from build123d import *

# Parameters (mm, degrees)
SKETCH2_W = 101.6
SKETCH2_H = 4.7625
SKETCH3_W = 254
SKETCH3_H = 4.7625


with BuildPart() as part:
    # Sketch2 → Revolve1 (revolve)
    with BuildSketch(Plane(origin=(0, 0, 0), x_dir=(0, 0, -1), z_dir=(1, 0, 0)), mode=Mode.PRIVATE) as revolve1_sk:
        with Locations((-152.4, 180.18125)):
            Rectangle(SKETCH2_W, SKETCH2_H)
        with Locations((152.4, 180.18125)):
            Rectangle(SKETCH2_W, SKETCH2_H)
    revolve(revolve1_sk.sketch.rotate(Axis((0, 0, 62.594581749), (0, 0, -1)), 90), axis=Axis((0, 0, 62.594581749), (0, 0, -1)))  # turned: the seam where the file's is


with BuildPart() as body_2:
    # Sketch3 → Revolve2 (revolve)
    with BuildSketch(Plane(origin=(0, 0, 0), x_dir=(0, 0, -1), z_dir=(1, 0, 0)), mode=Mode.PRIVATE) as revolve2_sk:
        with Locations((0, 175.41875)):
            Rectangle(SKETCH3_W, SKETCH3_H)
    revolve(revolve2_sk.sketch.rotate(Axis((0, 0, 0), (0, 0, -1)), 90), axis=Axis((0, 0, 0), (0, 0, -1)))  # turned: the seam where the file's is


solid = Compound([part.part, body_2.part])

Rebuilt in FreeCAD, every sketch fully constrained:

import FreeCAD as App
import Part
import Sketcher
from FreeCAD import Vector
Q = App.Units.Quantity

doc = App.newDocument("Part")
params = doc.addObject("Spreadsheet::Sheet", "Params")
for row, (alias, value) in enumerate([
    ("sketch1_height", "4 in"),
    ("sketch1_width", "0.1875 in"),
    ("revolution_angle", "360 deg"),
    ("sketch2_height", "10 in"),
    ("sketch2_width", "0.1875 in"),
    ("revolution2_angle", "360 deg"),
], start=1):
    params.set(f"A{row}", alias)
    params.set(f"B{row}", "=" + value)
    params.setAlias(f"B{row}", alias)

body = doc.addObject("PartDesign::Body", "Body")
body.AllowCompound = True

# Sketch on YZ plane
sketch1 = body.newObject("Sketcher::SketchObject", "Sketch")
sketch1.AttachmentSupport = (doc.getObject("YZ_Plane"), [""])
sketch1.MapMode = "FlatFace"
sketch1.addGeometry(Part.LineSegment(Vector(182.6, 203.2, 0), Vector(177.8, 203.2, 0)), False)
sketch1.addGeometry(Part.LineSegment(Vector(177.8, 203.2, 0), Vector(177.8, 101.6, 0)), False)
sketch1.addGeometry(Part.LineSegment(Vector(177.8, 101.6, 0), Vector(182.6, 101.6, 0)), False)
sketch1.addGeometry(Part.LineSegment(Vector(182.6, 101.6, 0), Vector(182.6, 203.2, 0)), False)
sketch1.addGeometry(Part.LineSegment(Vector(182.6, -101.6, 0), Vector(177.8, -101.6, 0)), False)
sketch1.addGeometry(Part.LineSegment(Vector(177.8, -101.6, 0), Vector(177.8, -203.2, 0)), False)
sketch1.addGeometry(Part.LineSegment(Vector(177.8, -203.2, 0), Vector(182.6, -203.2, 0)), False)
sketch1.addGeometry(Part.LineSegment(Vector(182.6, -203.2, 0), Vector(182.6, -101.6, 0)), False)
sketch1.addConstraint(Sketcher.Constraint("Coincident", 0, 2, 1, 1))
sketch1.addConstraint(Sketcher.Constraint("Coincident", 1, 2, 2, 1))
sketch1.addConstraint(Sketcher.Constraint("Coincident", 2, 2, 3, 1))
sketch1.addConstraint(Sketcher.Constraint("Coincident", 3, 2, 0, 1))
sketch1.addConstraint(Sketcher.Constraint("Coincident", 4, 2, 5, 1))
sketch1.addConstraint(Sketcher.Constraint("Coincident", 5, 2, 6, 1))
sketch1.addConstraint(Sketcher.Constraint("Coincident", 6, 2, 7, 1))
sketch1.addConstraint(Sketcher.Constraint("Coincident", 7, 2, 4, 1))
sketch1.addConstraint(Sketcher.Constraint("Horizontal", 0))
sketch1.addConstraint(Sketcher.Constraint("Vertical", 1))
sketch1.addConstraint(Sketcher.Constraint("Horizontal", 2))
sketch1.addConstraint(Sketcher.Constraint("Vertical", 3))
sketch1.addConstraint(Sketcher.Constraint("Horizontal", 4))
sketch1.addConstraint(Sketcher.Constraint("Vertical", 5))
sketch1.addConstraint(Sketcher.Constraint("Horizontal", 6))
sketch1.addConstraint(Sketcher.Constraint("Vertical", 7))
sketch1.addConstraint(Sketcher.Constraint("Symmetric", 1, 2, 4, 2, -1))
sketch1.addConstraint(Sketcher.Constraint("Symmetric", 3, 2, 6, 2, -1))
sketch1.addConstraint(Sketcher.Constraint("DistanceY", 1, 2, 1, 1, Q("4 in")))
sketch1.addConstraint(Sketcher.Constraint("DistanceX", -1, 1, 0, 2, Q("7 in")))
sketch1.addConstraint(Sketcher.Constraint("DistanceY", -1, 1, 0, 2, Q("8 in")))
sketch1.addConstraint(Sketcher.Constraint("DistanceX", 0, 2, 0, 1, Q("0.1875 in")))
sketch1.setExpression("Constraints[18]", "Params.sketch1_height")
sketch1.setExpression("Constraints[21]", "Params.sketch1_width")
revolution = body.newObject("PartDesign::Revolution", "Revolution")
revolution.Profile = sketch1
revolution.ReferenceAxis = (sketch1, ["V_Axis"])
revolution.setExpression("Angle", "Params.revolution_angle")
body2 = doc.addObject("PartDesign::Body", "Body001")

# Sketch on YZ plane
sketch2 = body2.newObject("Sketcher::SketchObject", "Sketch001")
sketch2.AttachmentSupport = (doc.getObject("YZ_Plane001"), [""])
sketch2.MapMode = "FlatFace"
sketch2.addGeometry(Part.LineSegment(Vector(177.8, 127, 0), Vector(173, 127, 0)), False)
sketch2.addGeometry(Part.LineSegment(Vector(173, 127, 0), Vector(173, -127, 0)), False)
sketch2.addGeometry(Part.LineSegment(Vector(173, -127, 0), Vector(177.8, -127, 0)), False)
sketch2.addGeometry(Part.LineSegment(Vector(177.8, -127, 0), Vector(177.8, 127, 0)), False)
sketch2.addConstraint(Sketcher.Constraint("Coincident", 0, 2, 1, 1))
sketch2.addConstraint(Sketcher.Constraint("Coincident", 1, 2, 2, 1))
sketch2.addConstraint(Sketcher.Constraint("Coincident", 2, 2, 3, 1))
sketch2.addConstraint(Sketcher.Constraint("Coincident", 3, 2, 0, 1))
sketch2.addConstraint(Sketcher.Constraint("Horizontal", 0))
sketch2.addConstraint(Sketcher.Constraint("Vertical", 1))
sketch2.addConstraint(Sketcher.Constraint("Horizontal", 2))
sketch2.addConstraint(Sketcher.Constraint("Vertical", 3))
sketch2.addConstraint(Sketcher.Constraint("DistanceY", 1, 2, 1, 1, Q("10 in")))
sketch2.addConstraint(Sketcher.Constraint("DistanceY", -1, 1, 0, 2, Q("5 in")))
sketch2.addConstraint(Sketcher.Constraint("DistanceX", -1, 1, 2, 2, Q("7 in")))
sketch2.addConstraint(Sketcher.Constraint("DistanceX", 0, 2, 0, 1, Q("0.1875 in")))
sketch2.setExpression("Constraints[8]", "Params.sketch2_height")
sketch2.setExpression("Constraints[11]", "Params.sketch2_width")
revolution2 = body2.newObject("PartDesign::Revolution", "Revolution001")
revolution2.Profile = sketch2
revolution2.ReferenceAxis = (sketch2, ["V_Axis"])
revolution2.setExpression("Angle", "Params.revolution2_angle")

doc.recompute()
